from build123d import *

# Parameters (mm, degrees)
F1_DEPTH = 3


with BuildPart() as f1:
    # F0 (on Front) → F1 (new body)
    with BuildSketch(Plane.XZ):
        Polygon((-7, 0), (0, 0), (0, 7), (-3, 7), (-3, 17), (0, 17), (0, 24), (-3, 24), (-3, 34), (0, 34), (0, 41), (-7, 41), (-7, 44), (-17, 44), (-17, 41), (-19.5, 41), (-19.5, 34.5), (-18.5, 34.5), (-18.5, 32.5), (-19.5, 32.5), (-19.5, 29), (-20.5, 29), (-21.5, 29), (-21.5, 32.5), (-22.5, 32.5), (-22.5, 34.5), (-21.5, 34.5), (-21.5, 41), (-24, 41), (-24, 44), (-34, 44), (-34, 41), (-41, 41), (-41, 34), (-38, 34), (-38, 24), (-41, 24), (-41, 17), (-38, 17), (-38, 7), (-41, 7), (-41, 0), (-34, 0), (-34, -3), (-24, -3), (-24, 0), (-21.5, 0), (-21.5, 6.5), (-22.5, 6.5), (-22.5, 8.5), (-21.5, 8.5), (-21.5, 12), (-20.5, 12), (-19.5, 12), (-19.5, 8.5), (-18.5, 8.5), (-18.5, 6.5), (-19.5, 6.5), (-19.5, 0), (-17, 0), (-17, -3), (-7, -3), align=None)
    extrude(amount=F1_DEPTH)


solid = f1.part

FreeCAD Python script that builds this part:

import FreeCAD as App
import Part
import Sketcher


def add_polygon(sketch, points):
    """Adds a closed chain of lines whose ends are joined by coincident constraints."""
    first, n = sketch.GeometryCount, len(points)
    for a, b in zip(points, points[1:] + points[:1]):
        sketch.addGeometry(Part.LineSegment(App.Vector(*a, 0), App.Vector(*b, 0)), False)
    for i in range(n):
        sketch.addConstraint(Sketcher.Constraint("Coincident", first + i, 2, first + (i + 1) % n, 1))

doc = App.newDocument("Part")
body = doc.addObject("PartDesign::Body", "Body")

sketch1 = body.newObject("Sketcher::SketchObject", "Sketch")
sketch1.AttachmentSupport = (doc.getObject("XZ_Plane"), [""])
sketch1.MapMode = "FlatFace"
add_polygon(sketch1, [(-7, 0), (0, 0), (0, 7), (-3, 7), (-3, 17), (0, 17), (0, 24), (-3, 24), (-3, 34), (0, 34), (0, 41), (-7, 41), (-7, 44), (-17, 44), (-17, 41), (-19.5, 41), (-19.5, 34.5), (-18.5, 34.5), (-18.5, 32.5), (-19.5, 32.5), (-19.5, 29), (-21.5, 29), (-21.5, 32.5), (-22.5, 32.5), (-22.5, 34.5), (-21.5, 34.5), (-21.5, 41), (-24, 41), (-24, 44), (-34, 44), (-34, 41), (-41, 41), (-41, 34), (-38, 34), (-38, 24), (-41, 24), (-41, 17), (-38, 17), (-38, 7), (-41, 7), (-41, 0), (-34, 0), (-34, -3), (-24, -3), (-24, 0), (-21.5, 0), (-21.5, 6.5), (-22.5, 6.5), (-22.5, 8.5), (-21.5, 8.5), (-21.5, 12), (-19.5, 12), (-19.5, 8.5), (-18.5, 8.5), (-18.5, 6.5), (-19.5, 6.5), (-19.5, 0), (-17, 0), (-17, -3), (-7, -3)])
sketch1.addConstraint(Sketcher.Constraint("Horizontal", 0))
sketch1.addConstraint(Sketcher.Constraint("Vertical", 1))
sketch1.addConstraint(Sketcher.Constraint("Horizontal", 2))
sketch1.addConstraint(Sketcher.Constraint("Vertical", 3))
sketch1.addConstraint(Sketcher.Constraint("Horizontal", 4))
sketch1.addConstraint(Sketcher.Constraint("Vertical", 5))
sketch1.addConstraint(Sketcher.Constraint("Horizontal", 6))
sketch1.addConstraint(Sketcher.Constraint("Vertical", 7))
sketch1.addConstraint(Sketcher.Constraint("Horizontal", 8))
sketch1.addConstraint(Sketcher.Constraint("Vertical", 9))
sketch1.addConstraint(Sketcher.Constraint("Horizontal", 10))
sketch1.addConstraint(Sketcher.Constraint("Vertical", 11))
sketch1.addConstraint(Sketcher.Constraint("Horizontal", 12))
sketch1.addConstraint(Sketcher.Constraint("Vertical", 13))
sketch1.addConstraint(Sketcher.Constraint("Horizontal", 14))
sketch1.addConstraint(Sketcher.Constraint("Vertical", 15))
sketch1.addConstraint(Sketcher.Constraint("Horizontal", 16))
sketch1.addConstraint(Sketcher.Constraint("Vertical", 17))
sketch1.addConstraint(Sketcher.Constraint("Horizontal", 18))
sketch1.addConstraint(Sketcher.Constraint("Vertical", 19))
sketch1.addConstraint(Sketcher.Constraint("Horizontal", 20))
sketch1.addConstraint(Sketcher.Constraint("Vertical", 21))
sketch1.addConstraint(Sketcher.Constraint("Horizontal", 22))
sketch1.addConstraint(Sketcher.Constraint("Vertical", 23))
sketch1.addConstraint(Sketcher.Constraint("Horizontal", 24))
sketch1.addConstraint(Sketcher.Constraint("Vertical", 25))
sketch1.addConstraint(Sketcher.Constraint("Horizontal", 26))
sketch1.addConstraint(Sketcher.Constraint("Vertical", 27))
sketch1.addConstraint(Sketcher.Constraint("Horizontal", 28))
sketch1.addConstraint(Sketcher.Constraint("Vertical", 29))
sketch1.addConstraint(Sketcher.Constraint("Horizontal", 30))
sketch1.addConstraint(Sketcher.Constraint("Vertical", 31))
sketch1.addConstraint(Sketcher.Constraint("Horizontal", 32))
sketch1.addConstraint(Sketcher.Constraint("Vertical", 33))
sketch1.addConstraint(Sketcher.Constraint("Horizontal", 34))
sketch1.addConstraint(Sketcher.Constraint("Vertical", 35))
sketch1.addConstraint(Sketcher.Constraint("Horizontal", 36))
sketch1.addConstraint(Sketcher.Constraint("Vertical", 37))
sketch1.addConstraint(Sketcher.Constraint("Horizontal", 38))
sketch1.addConstraint(Sketcher.Constraint("Vertical", 39))
sketch1.addConstraint(Sketcher.Constraint("Horizontal", 40))
sketch1.addConstraint(Sketcher.Constraint("Vertical", 41))
sketch1.addConstraint(Sketcher.Constraint("Horizontal", 42))
sketch1.addConstraint(Sketcher.Constraint("Vertical", 43))
sketch1.addConstraint(Sketcher.Constraint("Horizontal", 44))
sketch1.addConstraint(Sketcher.Constraint("Vertical", 45))
sketch1.addConstraint(Sketcher.Constraint("Horizontal", 46))
sketch1.addConstraint(Sketcher.Constraint("Vertical", 47))
sketch1.addConstraint(Sketcher.Constraint("Horizontal", 48))
sketch1.addConstraint(Sketcher.Constraint("Vertical", 49))
sketch1.addConstraint(Sketcher.Constraint("Horizontal", 50))
sketch1.addConstraint(Sketcher.Constraint("Vertical", 51))
sketch1.addConstraint(Sketcher.Constraint("Horizontal", 52))
sketch1.addConstraint(Sketcher.Constraint("Vertical", 53))
sketch1.addConstraint(Sketcher.Constraint("Horizontal", 54))
sketch1.addConstraint(Sketcher.Constraint("Vertical", 55))
sketch1.addConstraint(Sketcher.Constraint("Horizontal", 56))
sketch1.addConstraint(Sketcher.Constraint("Vertical", 57))
sketch1.addConstraint(Sketcher.Constraint("Horizontal", 58))
sketch1.addConstraint(Sketcher.Constraint("Vertical", 59))
sketch1.addConstraint(Sketcher.Constraint("Coincident", 0, 2, -1, 1))
sketch1.addConstraint(Sketcher.Constraint("PointOnObject", 4, 2, -2))
sketch1.addConstraint(Sketcher.Constraint("PointOnObject", 8, 2, -2))
sketch1.addConstraint(Sketcher.Constraint("PointOnObject", 39, 2, -1))
sketch1.addConstraint(Sketcher.Constraint("PointOnObject", 43, 2, -1))
sketch1.addConstraint(Sketcher.Constraint("PointOnObject", 55, 2, -1))
sketch1.addConstraint(Sketcher.Constraint("Horizontal", 10, 2, 13, 2))
sketch1.addConstraint(Sketcher.Constraint("Horizontal", 18, 2, 21, 2))
sketch1.addConstraint(Sketcher.Constraint("Horizontal", 16, 2, 23, 2))
sketch1.addConstraint(Sketcher.Constraint("Horizontal", 14, 2, 25, 2))
sketch1.addConstraint(Sketcher.Constraint("Horizontal", 12, 2, 27, 2))
sketch1.addConstraint(Sketcher.Constraint("Horizontal", 26, 2, 29, 2))
sketch1.addConstraint(Sketcher.Constraint("Horizontal", 8, 2, 31, 2))
sketch1.addConstraint(Sketcher.Constraint("Horizontal", 6, 2, 33, 2))
sketch1.addConstraint(Sketcher.Constraint("Horizontal", 4, 2, 35, 2))
sketch1.addConstraint(Sketcher.Constraint("Horizontal", 2, 2, 37, 2))
sketch1.addConstraint(Sketcher.Constraint("Horizontal", 48, 2, 51, 2))
sketch1.addConstraint(Sketcher.Constraint("Horizontal", 46, 2, 53, 2))
sketch1.addConstraint(Sketcher.Constraint("Horizontal", 42, 2, 57, 2))
sketch1.addConstraint(Sketcher.Constraint("Vertical", 3, 2, 6, 2))
sketch1.addConstraint(Sketcher.Constraint("Vertical", 15, 2, 18, 2))
sketch1.addConstraint(Sketcher.Constraint("Vertical", 21, 2, 24, 2))
sketch1.addConstraint(Sketcher.Constraint("Vertical", 31, 2, 34, 2))
sketch1.addConstraint(Sketcher.Constraint("Vertical", 33, 2, 36, 2))
sketch1.addConstraint(Sketcher.Constraint("Vertical", 35, 2, 38, 2))
sketch1.addConstraint(Sketcher.Constraint("Vertical", 29, 2, 40, 2))
sketch1.addConstraint(Sketcher.Constraint("Vertical", 27, 2, 42, 2))
sketch1.addConstraint(Sketcher.Constraint("Vertical", 25, 2, 44, 2))
sketch1.addConstraint(Sketcher.Constraint("Vertical", 23, 2, 46, 2))
sketch1.addConstraint(Sketcher.Constraint("Vertical", 45, 2, 48, 2))
sketch1.addConstraint(Sketcher.Constraint("Vertical", 19, 2, 50, 2))
sketch1.addConstraint(Sketcher.Constraint("Vertical", 17, 2, 52, 2))
sketch1.addConstraint(Sketcher.Constraint("Vertical", 51, 2, 54, 2))
sketch1.addConstraint(Sketcher.Constraint("Vertical", 13, 2, 56, 2))
sketch1.addConstraint(Sketcher.Constraint("Vertical", 11, 2, 58, 2))
sketch1.addConstraint(Sketcher.Constraint("Equal", 18, 22))
sketch1.addConstraint(Sketcher.Constraint("Equal", 14, 26))
sketch1.addConstraint(Sketcher.Constraint("Equal", 12, 28))
sketch1.addConstraint(Sketcher.Constraint("Equal", 10, 30))
sketch1.addConstraint(Sketcher.Constraint("Equal", 8, 32))
sketch1.addConstraint(Sketcher.Constraint("Equal", 40, 1))
sketch1.addConstraint(Sketcher.Constraint("Equal", 58, 3))
sketch1.addConstraint(Sketcher.Constraint("Equal", 1, 5))
sketch1.addConstraint(Sketcher.Constraint("Equal", 3, 7))
sketch1.addConstraint(Sketcher.Constraint("Equal", 5, 9))
sketch1.addConstraint(Sketcher.Constraint("Equal", 38, 11))
sketch1.addConstraint(Sketcher.Constraint("Equal", 50, 17))
sketch1.addConstraint(Sketcher.Constraint("Equal", 29, 41))
sketch1.addConstraint(Sketcher.Constraint("Equal", 25, 45))
sketch1.addConstraint(Sketcher.Constraint("Equal", 23, 47))
sketch1.addConstraint(Sketcher.Constraint("Equal", 21, 49))
sketch1.addConstraint(Sketcher.Constraint("DistanceX", 0, 1, 0, 2, 7.0))
sketch1.addConstraint(Sketcher.Constraint("DistanceX", 2, 2, 2, 1, 3.0))
sketch1.addConstraint(Sketcher.Constraint("DistanceX", 12, 2, 12, 1, 10.0))
sketch1.addConstraint(Sketcher.Constraint("DistanceX", 16, 1, 16, 2, 1.0))
sketch1.addConstraint(Sketcher.Constraint("DistanceX", 20, 2, 20, 1, 2.0))
sketch1.addConstraint(Sketcher.Constraint("DistanceX", 14, 2, 14, 1, 2.5))
sketch1.addConstraint(Sketcher.Constraint("DistanceY", 15, 2, 15, 1, 6.5))
sketch1.addConstraint(Sketcher.Constraint("DistanceY", 19, 2, 19, 1, 3.5))
pad1 = body.newObject("PartDesign::Pad", "Pad")
pad1.Profile = sketch1
pad1.Length = 3

doc.recompute()
